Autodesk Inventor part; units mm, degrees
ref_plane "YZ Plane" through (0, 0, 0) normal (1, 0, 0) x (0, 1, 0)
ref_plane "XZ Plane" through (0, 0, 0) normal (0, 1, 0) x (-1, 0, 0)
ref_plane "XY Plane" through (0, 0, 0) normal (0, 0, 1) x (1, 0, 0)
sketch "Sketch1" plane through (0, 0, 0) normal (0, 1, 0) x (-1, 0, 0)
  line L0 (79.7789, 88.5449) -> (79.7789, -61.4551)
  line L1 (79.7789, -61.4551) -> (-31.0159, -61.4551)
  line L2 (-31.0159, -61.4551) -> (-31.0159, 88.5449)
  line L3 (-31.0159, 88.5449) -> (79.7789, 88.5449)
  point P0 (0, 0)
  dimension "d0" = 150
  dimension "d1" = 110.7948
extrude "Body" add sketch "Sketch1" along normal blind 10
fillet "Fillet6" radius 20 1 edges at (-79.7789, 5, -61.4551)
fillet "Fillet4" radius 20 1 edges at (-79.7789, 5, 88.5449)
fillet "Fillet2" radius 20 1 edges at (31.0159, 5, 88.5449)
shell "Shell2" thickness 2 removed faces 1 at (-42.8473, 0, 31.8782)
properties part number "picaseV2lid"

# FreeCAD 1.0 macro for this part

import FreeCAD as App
import Part
import Sketcher
Q = App.Units.Quantity


def edges_at(feature, points):
    """Names of the edges that pass closest to the given points."""
    edges = feature.Shape.Edges
    near = lambda p: min(range(len(edges)), key=lambda i: edges[i].distToShape(Part.Vertex(*p))[0])
    return sorted({f"Edge{near(p) + 1}" for p in points})


def faces_at(feature, points):
    """Names of the faces that lie closest to the given points."""
    faces = feature.Shape.Faces
    near = lambda p: min(range(len(faces)), key=lambda i: faces[i].distToShape(Part.Vertex(*p))[0])
    return sorted({f"Face{near(p) + 1}" for p in points})

doc = App.newDocument("Part")
body = doc.addObject("PartDesign::Body", "Body")

# Sketch on XZ plane
sketch1 = body.newObject("Sketcher::SketchObject", "Sketch")
sketch1.AttachmentSupport = (doc.getObject("XZ_Plane"), [""])
sketch1.MapMode = "FlatFace"
sketch1.addGeometry([
    Part.LineSegment(App.Vector(-80, -61, 0), App.Vector(-80, 89, 0)),
    Part.LineSegment(App.Vector(-80, 89, 0), App.Vector(31, 89, 0)),
    Part.LineSegment(App.Vector(31, 89, 0), App.Vector(31, -61, 0)),
    Part.LineSegment(App.Vector(31, -61, 0), App.Vector(-80, -61, 0)),
], False)
sketch1.addConstraint([
    Sketcher.Constraint("Coincident", 0, 2, 1, 1),
    Sketcher.Constraint("Coincident", 1, 2, 2, 1),
    Sketcher.Constraint("Coincident", 2, 2, 3, 1),
    Sketcher.Constraint("Coincident", 3, 2, 0, 1),
    Sketcher.Constraint("Vertical", 0),
    Sketcher.Constraint("Horizontal", 1),
    Sketcher.Constraint("Vertical", 2),
    Sketcher.Constraint("Horizontal", 3),
    Sketcher.Constraint("DistanceY", 0, 1, 0, 2, Q("150 mm")),
    Sketcher.Constraint("DistanceX", 1, 1, 1, 2, Q("110.7948 mm")),
    Sketcher.Constraint("DistanceX", 0, 2, -1, 1, Q("79.779 mm")),
    Sketcher.Constraint("DistanceY", -1, 1, 0, 2, Q("88.545 mm")),
])
pad1 = body.newObject("PartDesign::Pad", "Pad")
pad1.Profile = sketch1
pad1.Length = 10
pad1.Reversed = True
doc.recompute()

fillet = body.newObject("PartDesign::Fillet", "Fillet")
fillet.Base = (pad1, edges_at(pad1, [(-79.779, 5, -61.455)]))
fillet.Radius = 20
doc.recompute()

fillet2 = body.newObject("PartDesign::Fillet", "Fillet001")
fillet2.Base = (fillet, edges_at(fillet, [(-79.779, 5, 88.545)]))
fillet2.Radius = 20
doc.recompute()

fillet3 = body.newObject("PartDesign::Fillet", "Fillet002")
fillet3.Base = (fillet2, edges_at(fillet2, [(31.016, 5, 88.545)]))
fillet3.Radius = 20
doc.recompute()

thickness = body.newObject("PartDesign::Thickness", "Thickness")
thickness.Base = (fillet3, faces_at(fillet3, [(-42.847, 0, 31.878)]))
thickness.Value = 2
thickness.Reversed = True
thickness.Join = "Intersection"

doc.recompute()
